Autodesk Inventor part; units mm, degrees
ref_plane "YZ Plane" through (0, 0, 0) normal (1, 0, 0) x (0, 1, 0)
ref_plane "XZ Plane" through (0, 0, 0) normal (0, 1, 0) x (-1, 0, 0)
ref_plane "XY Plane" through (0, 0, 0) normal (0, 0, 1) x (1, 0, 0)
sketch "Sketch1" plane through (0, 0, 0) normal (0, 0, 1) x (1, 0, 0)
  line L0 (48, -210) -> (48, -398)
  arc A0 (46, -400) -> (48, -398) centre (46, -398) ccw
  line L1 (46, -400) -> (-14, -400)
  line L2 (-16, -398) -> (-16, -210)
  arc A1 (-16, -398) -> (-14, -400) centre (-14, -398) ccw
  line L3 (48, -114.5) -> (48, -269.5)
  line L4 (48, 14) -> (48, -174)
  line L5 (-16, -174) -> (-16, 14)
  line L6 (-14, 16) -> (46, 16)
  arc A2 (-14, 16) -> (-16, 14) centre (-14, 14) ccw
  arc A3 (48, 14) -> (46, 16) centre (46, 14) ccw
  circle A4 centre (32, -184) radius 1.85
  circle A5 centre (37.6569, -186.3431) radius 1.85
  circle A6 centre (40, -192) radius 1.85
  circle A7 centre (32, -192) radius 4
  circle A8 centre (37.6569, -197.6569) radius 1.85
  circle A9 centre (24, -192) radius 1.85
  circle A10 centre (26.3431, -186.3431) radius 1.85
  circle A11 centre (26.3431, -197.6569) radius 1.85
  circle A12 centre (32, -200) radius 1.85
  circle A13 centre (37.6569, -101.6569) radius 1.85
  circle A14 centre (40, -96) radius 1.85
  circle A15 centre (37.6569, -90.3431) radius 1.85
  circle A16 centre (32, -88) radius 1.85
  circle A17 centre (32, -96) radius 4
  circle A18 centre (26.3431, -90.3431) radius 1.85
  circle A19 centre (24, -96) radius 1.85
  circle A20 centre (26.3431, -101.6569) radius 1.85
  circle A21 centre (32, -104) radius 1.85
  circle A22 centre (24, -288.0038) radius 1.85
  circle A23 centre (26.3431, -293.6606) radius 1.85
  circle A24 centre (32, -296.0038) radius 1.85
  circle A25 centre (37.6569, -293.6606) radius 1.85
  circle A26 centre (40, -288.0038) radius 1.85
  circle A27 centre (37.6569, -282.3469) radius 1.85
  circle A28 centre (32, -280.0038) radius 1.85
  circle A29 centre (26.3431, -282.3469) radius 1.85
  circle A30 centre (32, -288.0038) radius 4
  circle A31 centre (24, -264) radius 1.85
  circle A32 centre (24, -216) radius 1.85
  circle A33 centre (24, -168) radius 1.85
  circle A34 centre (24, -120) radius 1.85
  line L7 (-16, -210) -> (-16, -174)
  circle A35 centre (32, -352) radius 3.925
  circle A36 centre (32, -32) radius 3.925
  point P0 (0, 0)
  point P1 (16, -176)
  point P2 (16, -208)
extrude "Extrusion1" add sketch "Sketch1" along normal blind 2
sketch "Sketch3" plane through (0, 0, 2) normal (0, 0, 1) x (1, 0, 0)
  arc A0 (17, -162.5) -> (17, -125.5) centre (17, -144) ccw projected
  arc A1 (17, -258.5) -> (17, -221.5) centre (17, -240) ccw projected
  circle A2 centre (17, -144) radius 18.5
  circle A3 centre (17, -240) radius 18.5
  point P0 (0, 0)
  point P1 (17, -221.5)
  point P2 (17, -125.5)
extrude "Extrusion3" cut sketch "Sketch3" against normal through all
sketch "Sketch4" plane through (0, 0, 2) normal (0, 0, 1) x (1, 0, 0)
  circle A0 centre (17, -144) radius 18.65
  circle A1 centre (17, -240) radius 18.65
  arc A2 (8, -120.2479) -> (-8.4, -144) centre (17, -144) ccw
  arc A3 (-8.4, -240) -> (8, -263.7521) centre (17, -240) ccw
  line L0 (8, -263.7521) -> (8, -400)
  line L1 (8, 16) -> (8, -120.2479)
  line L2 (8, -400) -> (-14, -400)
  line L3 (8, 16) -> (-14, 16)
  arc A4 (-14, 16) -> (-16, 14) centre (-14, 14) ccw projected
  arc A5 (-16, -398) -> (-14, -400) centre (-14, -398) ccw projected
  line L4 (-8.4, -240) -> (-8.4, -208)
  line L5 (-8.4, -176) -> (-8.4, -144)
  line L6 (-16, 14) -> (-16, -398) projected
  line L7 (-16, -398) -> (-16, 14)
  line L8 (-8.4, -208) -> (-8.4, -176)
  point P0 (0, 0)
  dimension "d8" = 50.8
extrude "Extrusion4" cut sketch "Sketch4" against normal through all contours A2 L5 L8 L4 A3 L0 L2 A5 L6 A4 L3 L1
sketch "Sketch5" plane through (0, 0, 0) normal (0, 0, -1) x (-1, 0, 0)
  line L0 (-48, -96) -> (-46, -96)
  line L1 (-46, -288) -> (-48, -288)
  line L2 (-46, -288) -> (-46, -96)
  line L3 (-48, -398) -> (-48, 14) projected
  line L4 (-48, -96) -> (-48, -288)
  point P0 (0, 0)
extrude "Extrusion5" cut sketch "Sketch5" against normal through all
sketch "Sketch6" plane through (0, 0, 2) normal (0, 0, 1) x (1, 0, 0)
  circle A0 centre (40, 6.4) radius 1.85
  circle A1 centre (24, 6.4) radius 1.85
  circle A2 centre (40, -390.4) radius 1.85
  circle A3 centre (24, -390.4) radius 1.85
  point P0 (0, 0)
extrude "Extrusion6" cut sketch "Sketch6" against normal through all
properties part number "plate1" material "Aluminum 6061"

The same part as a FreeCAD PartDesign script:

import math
import FreeCAD as App
import Part
import Sketcher
Q = App.Units.Quantity


def add_polygon(sketch, points):
    """Adds a closed chain of lines whose ends are joined by coincident constraints."""
    first, n = sketch.GeometryCount, len(points)
    for a, b in zip(points, points[1:] + points[:1]):
        sketch.addGeometry(Part.LineSegment(App.Vector(*a, 0), App.Vector(*b, 0)), False)
    for i in range(n):
        sketch.addConstraint(Sketcher.Constraint("Coincident", first + i, 2, first + (i + 1) % n, 1))

doc = App.newDocument("Part")
body = doc.addObject("PartDesign::Body", "Body")

# Sketch on XY plane
sketch1 = body.newObject("Sketcher::SketchObject", "Sketch")
sketch1.AttachmentSupport = (doc.getObject("XY_Plane"), [""])
sketch1.MapMode = "FlatFace"
sketch1.addGeometry([
    Part.LineSegment(App.Vector(48, -398, 0), App.Vector(48, 14, 0)),  # 0
    Part.ArcOfCircle(Part.Circle(App.Vector(46, 14, 0), App.Vector(0, 0, 1), 2), math.radians(0), math.radians(90)),  # 1
    Part.LineSegment(App.Vector(46, 16, 0), App.Vector(-14, 16, 0)),  # 2
    Part.ArcOfCircle(Part.Circle(App.Vector(-14, 14, 0), App.Vector(0, 0, 1), 2), math.radians(90), math.radians(180)),  # 3
    Part.LineSegment(App.Vector(-16, 14, 0), App.Vector(-16, -398, 0)),  # 4
    Part.ArcOfCircle(Part.Circle(App.Vector(-14, -398, 0), App.Vector(0, 0, 1), 2), math.radians(180), math.radians(270)),  # 5
    Part.LineSegment(App.Vector(-14, -400, 0), App.Vector(46, -400, 0)),  # 6
    Part.ArcOfCircle(Part.Circle(App.Vector(46, -398, 0), App.Vector(0, 0, 1), 2), math.radians(-90), math.radians(0)),  # 7
    Part.Circle(App.Vector(32, -352, 0), App.Vector(0, 0, 1), 3.9),  # 8
    Part.Circle(App.Vector(32, -296, 0), App.Vector(0, 0, 1), 1.9),  # 9
    Part.Circle(App.Vector(24, -288, 0), App.Vector(0, 0, 1), 1.9),  # 10
    Part.Circle(App.Vector(24, -264, 0), App.Vector(0, 0, 1), 1.9),  # 11
    Part.Circle(App.Vector(26.3, -293.7, 0), App.Vector(0, 0, 1), 1.9),  # 12
    Part.Circle(App.Vector(26.3, -282.3, 0), App.Vector(0, 0, 1), 1.9),  # 13
    Part.Circle(App.Vector(32, -288, 0), App.Vector(0, 0, 1), 4),  # 14
    Part.Circle(App.Vector(32, -280, 0), App.Vector(0, 0, 1), 1.9),  # 15
    Part.Circle(App.Vector(24, -216, 0), App.Vector(0, 0, 1), 1.9),  # 16
    Part.Circle(App.Vector(26.3, -197.7, 0), App.Vector(0, 0, 1), 1.9),  # 17
    Part.Circle(App.Vector(32, -200, 0), App.Vector(0, 0, 1), 1.9),  # 18
    Part.Circle(App.Vector(37.7, -293.7, 0), App.Vector(0, 0, 1), 1.9),  # 19
    Part.Circle(App.Vector(40, -288, 0), App.Vector(0, 0, 1), 1.9),  # 20
    Part.Circle(App.Vector(37.7, -282.3, 0), App.Vector(0, 0, 1), 1.9),  # 21
    Part.Circle(App.Vector(37.7, -197.7, 0), App.Vector(0, 0, 1), 1.9),  # 22
    Part.Circle(App.Vector(24, -192, 0), App.Vector(0, 0, 1), 1.9),  # 23
    Part.Circle(App.Vector(24, -168, 0), App.Vector(0, 0, 1), 1.9),  # 24
    Part.Circle(App.Vector(26.3, -186.3, 0), App.Vector(0, 0, 1), 1.9),  # 25
    Part.Circle(App.Vector(32, -192, 0), App.Vector(0, 0, 1), 4),  # 26
    Part.Circle(App.Vector(32, -184, 0), App.Vector(0, 0, 1), 1.9),  # 27
    Part.Circle(App.Vector(24, -120, 0), App.Vector(0, 0, 1), 1.9),  # 28
    Part.Circle(App.Vector(24, -96, 0), App.Vector(0, 0, 1), 1.9),  # 29
    Part.Circle(App.Vector(26.3, -101.7, 0), App.Vector(0, 0, 1), 1.9),  # 30
    Part.Circle(App.Vector(26.3, -90.3, 0), App.Vector(0, 0, 1), 1.9),  # 31
    Part.Circle(App.Vector(32, -104, 0), App.Vector(0, 0, 1), 1.9),  # 32
    Part.Circle(App.Vector(32, -96, 0), App.Vector(0, 0, 1), 4),  # 33
    Part.Circle(App.Vector(37.7, -186.3, 0), App.Vector(0, 0, 1), 1.9),  # 34
    Part.Circle(App.Vector(40, -192, 0), App.Vector(0, 0, 1), 1.9),  # 35
    Part.Circle(App.Vector(37.7, -101.7, 0), App.Vector(0, 0, 1), 1.9),  # 36
    Part.Circle(App.Vector(37.7, -90.3, 0), App.Vector(0, 0, 1), 1.9),  # 37
    Part.Circle(App.Vector(40, -96, 0), App.Vector(0, 0, 1), 1.9),  # 38
    Part.Circle(App.Vector(32, -88, 0), App.Vector(0, 0, 1), 1.9),  # 39
    Part.Circle(App.Vector(32, -32, 0), App.Vector(0, 0, 1), 3.9),  # 40
], False)
sketch1.addConstraint([
    Sketcher.Constraint("Tangent", 0, 2, 1, 1),
    Sketcher.Constraint("Tangent", 1, 2, 2, 1),
    Sketcher.Constraint("Tangent", 2, 2, 3, 1),
    Sketcher.Constraint("Tangent", 3, 2, 4, 1),
    Sketcher.Constraint("Tangent", 4, 2, 5, 1),
    Sketcher.Constraint("Tangent", 5, 2, 6, 1),
    Sketcher.Constraint("Tangent", 6, 2, 7, 1),
    Sketcher.Constraint("Tangent", 7, 2, 0, 1),
    Sketcher.Constraint("Vertical", 0),
    Sketcher.Constraint("Horizontal", 2),
    Sketcher.Constraint("Vertical", 4),
    Sketcher.Constraint("Horizontal", 6),
    Sketcher.Constraint("Equal", 1, 3),
    Sketcher.Constraint("Equal", 3, 5),
    Sketcher.Constraint("Equal", 5, 7),
    Sketcher.Constraint("Equal", 9, 10),
    Sketcher.Constraint("Equal", 10, 11),
    Sketcher.Constraint("Equal", 11, 12),
    Sketcher.Constraint("Equal", 12, 13),
    Sketcher.Constraint("Equal", 13, 15),
    Sketcher.Constraint("Equal", 15, 16),
    Sketcher.Constraint("Equal", 16, 17),
    Sketcher.Constraint("Equal", 17, 18),
    Sketcher.Constraint("Equal", 18, 19),
    Sketcher.Constraint("Equal", 19, 20),
    Sketcher.Constraint("Equal", 20, 21),
    Sketcher.Constraint("Equal", 21, 22),
    Sketcher.Constraint("Equal", 22, 23),
    Sketcher.Constraint("Equal", 23, 24),
    Sketcher.Constraint("Equal", 24, 25),
    Sketcher.Constraint("Equal", 14, 26),
    Sketcher.Constraint("Equal", 25, 27),
    Sketcher.Constraint("Equal", 27, 28),
    Sketcher.Constraint("Equal", 28, 29),
    Sketcher.Constraint("Equal", 29, 30),
    Sketcher.Constraint("Equal", 30, 31),
    Sketcher.Constraint("Equal", 31, 32),
    Sketcher.Constraint("Equal", 26, 33),
    Sketcher.Constraint("Equal", 32, 34),
    Sketcher.Constraint("Equal", 34, 35),
    Sketcher.Constraint("Equal", 35, 36),
    Sketcher.Constraint("Equal", 36, 37),
    Sketcher.Constraint("Equal", 37, 38),
    Sketcher.Constraint("Equal", 38, 39),
    Sketcher.Constraint("Equal", 8, 40),
    Sketcher.Constraint("Horizontal", 10, 3, 14, 3),
    Sketcher.Constraint("Horizontal", 12, 3, 19, 3),
    Sketcher.Constraint("Horizontal", 14, 3, 20, 3),
    Sketcher.Constraint("Horizontal", 13, 3, 21, 3),
    Sketcher.Constraint("Horizontal", 17, 3, 22, 3),
    Sketcher.Constraint("Horizontal", 23, 3, 26, 3),
    Sketcher.Constraint("Horizontal", 29, 3, 33, 3),
    Sketcher.Constraint("Horizontal", 25, 3, 34, 3),
    Sketcher.Constraint("Horizontal", 26, 3, 35, 3),
    Sketcher.Constraint("Horizontal", 30, 3, 36, 3),
    Sketcher.Constraint("Horizontal", 31, 3, 37, 3),
    Sketcher.Constraint("Horizontal", 33, 3, 38, 3),
    Sketcher.Constraint("Vertical", 8, 3, 9, 3),
    Sketcher.Constraint("Vertical", 10, 3, 11, 3),
    Sketcher.Constraint("Vertical", 12, 3, 13, 3),
    Sketcher.Constraint("Vertical", 9, 3, 14, 3),
    Sketcher.Constraint("Vertical", 14, 3, 15, 3),
    Sketcher.Constraint("Vertical", 11, 3, 16, 3),
    Sketcher.Constraint("Vertical", 13, 3, 17, 3),
    Sketcher.Constraint("Vertical", 15, 3, 18, 3),
    Sketcher.Constraint("Vertical", 19, 3, 21, 3),
    Sketcher.Constraint("Vertical", 21, 3, 22, 3),
    Sketcher.Constraint("Vertical", 16, 3, 23, 3),
    Sketcher.Constraint("Vertical", 23, 3, 24, 3),
    Sketcher.Constraint("Vertical", 17, 3, 25, 3),
    Sketcher.Constraint("Vertical", 18, 3, 26, 3),
    Sketcher.Constraint("Vertical", 26, 3, 27, 3),
    Sketcher.Constraint("Vertical", 24, 3, 28, 3),
    Sketcher.Constraint("Vertical", 28, 3, 29, 3),
    Sketcher.Constraint("Vertical", 25, 3, 30, 3),
    Sketcher.Constraint("Vertical", 30, 3, 31, 3),
    Sketcher.Constraint("Vertical", 27, 3, 32, 3),
    Sketcher.Constraint("Vertical", 32, 3, 33, 3),
    Sketcher.Constraint("Vertical", 22, 3, 34, 3),
    Sketcher.Constraint("Vertical", 20, 3, 35, 3),
    Sketcher.Constraint("Vertical", 34, 3, 36, 3),
    Sketcher.Constraint("Vertical", 36, 3, 37, 3),
    Sketcher.Constraint("Vertical", 35, 3, 38, 3),
    Sketcher.Constraint("Vertical", 33, 3, 39, 3),
    Sketcher.Constraint("Vertical", 39, 3, 40, 3),
    Sketcher.Constraint("Diameter", 14, Q("8 mm")),
    Sketcher.Constraint("Radius", 1, Q("2 mm")),
    Sketcher.Constraint("Diameter", 9, Q("3.7 mm")),
    Sketcher.Constraint("Diameter", 8, Q("7.85 mm")),
    Sketcher.Constraint("DistanceX", 2, 2, 2, 1, Q("60 mm")),
    Sketcher.Constraint("DistanceY", 0, 1, 0, 2, Q("412 mm")),
    Sketcher.Constraint("DistanceX", -1, 1, 1, 3, Q("46 mm")),
    Sketcher.Constraint("DistanceY", -1, 1, 1, 3, Q("14 mm")),
    Sketcher.Constraint("DistanceX", -1, 1, 8, 3, Q("32 mm")),
    Sketcher.Constraint("DistanceY", 8, 3, -1, 1, Q("352 mm")),
    Sketcher.Constraint("DistanceX", -1, 1, 10, 3, Q("24 mm")),
    Sketcher.Constraint("DistanceY", 11, 3, -1, 1, Q("264 mm")),
    Sketcher.Constraint("DistanceY", 16, 3, -1, 1, Q("216 mm")),
    Sketcher.Constraint("DistanceY", 18, 3, -1, 1, Q("200 mm")),
    Sketcher.Constraint("DistanceX", -1, 1, 20, 3, Q("40 mm")),
    Sketcher.Constraint("DistanceY", 23, 3, -1, 1, Q("192 mm")),
    Sketcher.Constraint("DistanceY", 24, 3, -1, 1, Q("168 mm")),
    Sketcher.Constraint("DistanceY", 27, 3, -1, 1, Q("184 mm")),
    Sketcher.Constraint("DistanceY", 28, 3, -1, 1, Q("120 mm")),
    Sketcher.Constraint("DistanceY", 29, 3, -1, 1, Q("96 mm")),
    Sketcher.Constraint("DistanceY", 32, 3, -1, 1, Q("104 mm")),
    Sketcher.Constraint("DistanceY", 39, 3, -1, 1, Q("88 mm")),
    Sketcher.Constraint("DistanceY", 40, 3, -1, 1, Q("32 mm")),
    Sketcher.Constraint("DistanceY", 9, 3, 10, 3, Q("8 mm")),
    Sketcher.Constraint("DistanceY", 14, 3, 15, 3, Q("8 mm")),
    Sketcher.Constraint("DistanceY", 13, 3, 17, 3, Q("84.69 mm")),
    Sketcher.Constraint("DistanceX", -1, 1, 12, 3, Q("26.343 mm")),
    Sketcher.Constraint("DistanceY", 13, 3, -1, 1, Q("282.347 mm")),
    Sketcher.Constraint("DistanceX", -1, 1, 19, 3, Q("37.657 mm")),
    Sketcher.Constraint("DistanceY", 25, 3, -1, 1, Q("186.343 mm")),
    Sketcher.Constraint("DistanceY", 30, 3, -1, 1, Q("101.657 mm")),
    Sketcher.Constraint("DistanceY", 31, 3, -1, 1, Q("90.343 mm")),
    Sketcher.Constraint("DistanceY", 10, 3, 13, 3, Q("5.657 mm")),
    Sketcher.Constraint("DistanceY", 12, 3, -1, 1, Q("293.6606 mm")),
])
pad1 = body.newObject("PartDesign::Pad", "Pad")
pad1.Profile = sketch1
pad1.Length = 2

# Sketch on XY plane
sketch2 = body.newObject("Sketcher::SketchObject", "Sketch001")
sketch2.AttachmentSupport = (doc.getObject("XY_Plane"), [""])
sketch2.MapMode = "FlatFace"
sketch2.AttachmentOffset = App.Placement(App.Vector(0, 0, 2), App.Rotation())
sketch2.addGeometry([
    Part.Circle(App.Vector(17, -144, 0), App.Vector(0, 0, 1), 18),
    Part.Circle(App.Vector(17, -240, 0), App.Vector(0, 0, 1), 18),
], False)
sketch2.addConstraint([
    Sketcher.Constraint("Equal", 0, 1),
    Sketcher.Constraint("Vertical", 0, 3, 1, 3),
    Sketcher.Constraint("Diameter", 0, Q("37 mm")),
    Sketcher.Constraint("DistanceX", -1, 1, 0, 3, Q("17 mm")),
    Sketcher.Constraint("DistanceY", 0, 3, -1, 1, Q("144 mm")),
    Sketcher.Constraint("DistanceY", 1, 3, -1, 1, Q("240 mm")),
])
pocket1 = body.newObject("PartDesign::Pocket", "Pocket")
pocket1.Profile = sketch2
pocket1.Type = "ThroughAll"

# Sketch on XY plane
sketch3 = body.newObject("Sketcher::SketchObject", "Sketch002")
sketch3.AttachmentSupport = (doc.getObject("XY_Plane"), [""])
sketch3.MapMode = "FlatFace"
sketch3.AttachmentOffset = App.Placement(App.Vector(0, 0, 2), App.Rotation())
sketch3.addGeometry([
    Part.ArcOfCircle(Part.Circle(App.Vector(17, -144, 0), App.Vector(0, 0, 1), 25.4), math.radians(111), math.radians(180)),  # 0
    Part.LineSegment(App.Vector(8, -120.2, 0), App.Vector(8, 16, 0)),  # 1
    Part.LineSegment(App.Vector(8, 16, 0), App.Vector(-14, 16, 0)),  # 2
    Part.ArcOfCircle(Part.Circle(App.Vector(-14, 14, 0), App.Vector(0, 0, 1), 2), math.radians(90), math.radians(180)),  # 3
    Part.LineSegment(App.Vector(-16, 14, 0), App.Vector(-16, -398, 0)),  # 4
    Part.ArcOfCircle(Part.Circle(App.Vector(-14, -398, 0), App.Vector(0, 0, 1), 2), math.radians(180), math.radians(270)),  # 5
    Part.LineSegment(App.Vector(-14, -400, 0), App.Vector(8, -400, 0)),  # 6
    Part.LineSegment(App.Vector(8, -400, 0), App.Vector(8, -263.8, 0)),  # 7
    Part.ArcOfCircle(Part.Circle(App.Vector(17, -240, 0), App.Vector(0, 0, 1), 25.4), math.radians(180), math.radians(249)),  # 8
    Part.LineSegment(App.Vector(-8.4, -240, 0), App.Vector(-8.4, -144, 0)),  # 9
], False)
sketch3.addConstraint([
    Sketcher.Constraint("Coincident", 0, 1, 1, 1),
    Sketcher.Constraint("Coincident", 1, 2, 2, 1),
    Sketcher.Constraint("Tangent", 2, 2, 3, 1),
    Sketcher.Constraint("Tangent", 3, 2, 4, 1),
    Sketcher.Constraint("Tangent", 4, 2, 5, 1),
    Sketcher.Constraint("Tangent", 5, 2, 6, 1),
    Sketcher.Constraint("Coincident", 6, 2, 7, 1),
    Sketcher.Constraint("Coincident", 7, 2, 8, 2),
    Sketcher.Constraint("Tangent", 8, 1, 9, 1),
    Sketcher.Constraint("Tangent", 9, 2, 0, 2),
    Sketcher.Constraint("Vertical", 1),
    Sketcher.Constraint("Horizontal", 2),
    Sketcher.Constraint("Vertical", 4),
    Sketcher.Constraint("Horizontal", 6),
    Sketcher.Constraint("Vertical", 7),
    Sketcher.Constraint("Vertical", 9),
    Sketcher.Constraint("Equal", 3, 5),
    Sketcher.Constraint("Equal", 0, 8),
    Sketcher.Constraint("Vertical", 1, 2, 6, 2),
    Sketcher.Constraint("Equal", 1, 7),
    Sketcher.Constraint("Radius", 0, Q("25.4 mm")),
    Sketcher.Constraint("Radius", 3, Q("2 mm")),
    Sketcher.Constraint("DistanceX", 2, 2, 2, 1, Q("22 mm")),
    Sketcher.Constraint("DistanceY", 4, 2, 4, 1, Q("412 mm")),
    Sketcher.Constraint("DistanceY", 9, 1, 9, 2, Q("96 mm")),
    Sketcher.Constraint("DistanceX", -1, 1, 0, 3, Q("17 mm")),
    Sketcher.Constraint("DistanceY", 0, 3, -1, 1, Q("144 mm")),
    Sketcher.Constraint("DistanceX", 3, 3, -1, 1, Q("14 mm")),
])
pocket2 = body.newObject("PartDesign::Pocket", "Pocket001")
pocket2.Profile = sketch3
pocket2.Type = "ThroughAll"

# Sketch on XY plane
sketch4 = body.newObject("Sketcher::SketchObject", "Sketch003")
sketch4.AttachmentSupport = (doc.getObject("XY_Plane"), [""])
sketch4.MapMode = "FlatFace"
add_polygon(sketch4, [(46, -96), (48, -96), (48, -288), (46, -288)])  # lines 0-3
sketch4.addConstraint([
    Sketcher.Constraint("Horizontal", 0),
    Sketcher.Constraint("Vertical", 1),
    Sketcher.Constraint("Horizontal", 2),
    Sketcher.Constraint("Vertical", 3),
    Sketcher.Constraint("DistanceX", 0, 1, 0, 2, Q("2 mm")),
    Sketcher.Constraint("DistanceY", 1, 2, 1, 1, Q("192 mm")),
    Sketcher.Constraint("DistanceX", -1, 1, 0, 2, Q("48 mm")),
    Sketcher.Constraint("DistanceY", 0, 2, -1, 1, Q("96 mm")),
])
pocket3 = body.newObject("PartDesign::Pocket", "Pocket002")
pocket3.Profile = sketch4
pocket3.Type = "ThroughAll"
pocket3.Reversed = True

# Sketch on XY plane
sketch5 = body.newObject("Sketcher::SketchObject", "Sketch004")
sketch5.AttachmentSupport = (doc.getObject("XY_Plane"), [""])
sketch5.MapMode = "FlatFace"
sketch5.AttachmentOffset = App.Placement(App.Vector(0, 0, 2), App.Rotation())
sketch5.addGeometry([
    Part.Circle(App.Vector(40, 6.4, 0), App.Vector(0, 0, 1), 1.9),
    Part.Circle(App.Vector(24, 6.4, 0), App.Vector(0, 0, 1), 1.9),
    Part.Circle(App.Vector(40, -390.4, 0), App.Vector(0, 0, 1), 1.9),
    Part.Circle(App.Vector(24, -390.4, 0), App.Vector(0, 0, 1), 1.9),
], False)
sketch5.addConstraint([
    Sketcher.Constraint("Equal", 0, 1),
    Sketcher.Constraint("Equal", 1, 2),
    Sketcher.Constraint("Equal", 2, 3),
    Sketcher.Constraint("Horizontal", 0, 3, 1, 3),
    Sketcher.Constraint("Horizontal", 2, 3, 3, 3),
    Sketcher.Constraint("Vertical", 0, 3, 2, 3),
    Sketcher.Constraint("Vertical", 1, 3, 3, 3),
    Sketcher.Constraint("Diameter", 0, Q("3.7 mm")),
    Sketcher.Constraint("DistanceX", -1, 1, 0, 3, Q("40 mm")),
    Sketcher.Constraint("DistanceX", -1, 1, 1, 3, Q("24 mm")),
    Sketcher.Constraint("DistanceY", -1, 1, 0, 3, Q("6.4 mm")),
    Sketcher.Constraint("DistanceY", 2, 3, -1, 1, Q("390.4 mm")),
])
pocket4 = body.newObject("PartDesign::Pocket", "Pocket003")
pocket4.Profile = sketch5
pocket4.Type = "ThroughAll"

doc.recompute()
